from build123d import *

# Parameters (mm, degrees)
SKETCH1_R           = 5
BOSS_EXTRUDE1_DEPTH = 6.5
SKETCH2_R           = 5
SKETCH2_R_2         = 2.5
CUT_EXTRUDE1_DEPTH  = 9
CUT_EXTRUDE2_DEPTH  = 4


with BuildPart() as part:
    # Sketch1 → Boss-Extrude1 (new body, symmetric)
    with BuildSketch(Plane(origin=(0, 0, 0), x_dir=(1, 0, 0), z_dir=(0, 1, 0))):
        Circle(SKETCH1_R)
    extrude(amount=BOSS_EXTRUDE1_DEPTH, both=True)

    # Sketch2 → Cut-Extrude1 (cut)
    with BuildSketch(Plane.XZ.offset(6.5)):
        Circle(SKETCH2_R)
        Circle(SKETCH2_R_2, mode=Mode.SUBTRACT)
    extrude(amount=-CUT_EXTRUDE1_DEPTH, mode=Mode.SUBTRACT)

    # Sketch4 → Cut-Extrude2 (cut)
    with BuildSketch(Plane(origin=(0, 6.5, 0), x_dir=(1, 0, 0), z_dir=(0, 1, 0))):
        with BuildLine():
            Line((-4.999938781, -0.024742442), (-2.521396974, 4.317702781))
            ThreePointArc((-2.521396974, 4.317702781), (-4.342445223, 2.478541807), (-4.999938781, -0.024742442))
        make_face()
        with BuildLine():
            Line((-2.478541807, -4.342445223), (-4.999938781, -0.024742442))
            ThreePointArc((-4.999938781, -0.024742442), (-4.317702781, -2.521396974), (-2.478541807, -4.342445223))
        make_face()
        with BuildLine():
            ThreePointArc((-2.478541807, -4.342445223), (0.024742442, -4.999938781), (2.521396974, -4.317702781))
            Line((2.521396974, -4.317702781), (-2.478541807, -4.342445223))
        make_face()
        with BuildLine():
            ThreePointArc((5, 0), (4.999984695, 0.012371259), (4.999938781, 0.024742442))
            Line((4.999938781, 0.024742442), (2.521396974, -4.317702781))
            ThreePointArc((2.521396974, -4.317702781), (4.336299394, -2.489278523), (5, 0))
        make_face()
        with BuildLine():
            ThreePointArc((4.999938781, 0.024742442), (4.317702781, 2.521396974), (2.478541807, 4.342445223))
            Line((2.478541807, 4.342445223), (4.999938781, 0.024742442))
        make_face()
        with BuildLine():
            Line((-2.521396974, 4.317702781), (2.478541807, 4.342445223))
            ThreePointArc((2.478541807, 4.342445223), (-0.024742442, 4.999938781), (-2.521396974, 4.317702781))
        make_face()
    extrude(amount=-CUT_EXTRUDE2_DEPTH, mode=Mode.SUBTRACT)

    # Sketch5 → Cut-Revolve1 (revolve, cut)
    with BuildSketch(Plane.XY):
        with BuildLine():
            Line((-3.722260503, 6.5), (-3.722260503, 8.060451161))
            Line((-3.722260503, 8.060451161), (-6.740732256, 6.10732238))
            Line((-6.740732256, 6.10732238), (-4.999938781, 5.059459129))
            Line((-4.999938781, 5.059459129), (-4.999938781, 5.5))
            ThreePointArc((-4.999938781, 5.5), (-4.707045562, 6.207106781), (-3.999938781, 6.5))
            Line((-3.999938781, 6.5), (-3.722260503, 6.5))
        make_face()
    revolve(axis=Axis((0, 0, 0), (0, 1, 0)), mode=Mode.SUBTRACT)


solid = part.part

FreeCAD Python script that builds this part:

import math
import FreeCAD as App
import Part
import Sketcher

V = App.Vector
Q = App.Units.Quantity

doc = App.newDocument("Part")
body = doc.addObject("PartDesign::Body", "Body")

# Sketch on XZ plane
sketch1 = body.newObject("Sketcher::SketchObject", "Sketch")
sketch1.AttachmentSupport = (doc.getObject("XZ_Plane"), [""])
sketch1.MapMode = "FlatFace"
sketch1.addGeometry(Part.Circle(V(0, 0, 0), V(0, 0, 1), 5), False)
sketch1.addConstraint([
    Sketcher.Constraint("Coincident", 0, 3, -1, 1),
    Sketcher.Constraint("Diameter", 0, Q("10 mm")),
])
pad1 = body.newObject("PartDesign::Pad", "Pad")
pad1.Profile = sketch1
pad1.Length = 13
pad1.Midplane = True

# Sketch on XZ plane
sketch2 = body.newObject("Sketcher::SketchObject", "Sketch001")
sketch2.AttachmentSupport = (doc.getObject("XZ_Plane"), [""])
sketch2.MapMode = "FlatFace"
sketch2.AttachmentOffset = App.Placement(V(0, 0, 6.5), App.Rotation())
sketch2.addGeometry([
    Part.Circle(V(0, 0, 0), V(0, 0, 1), 5),
    Part.Circle(V(0, 0, 0), V(0, 0, 1), 2.5),
], False)
sketch2.addConstraint([
    Sketcher.Constraint("Coincident", 0, 3, -1, 1),
    Sketcher.Constraint("Coincident", 1, 3, -1, 1),
    Sketcher.Constraint("Diameter", 0, Q("10 mm")),
    Sketcher.Constraint("Diameter", 1, Q("5 mm")),
])
pocket1 = body.newObject("PartDesign::Pocket", "Pocket")
pocket1.Profile = sketch2
pocket1.Length = 9

# Sketch on XZ plane
sketch3 = body.newObject("Sketcher::SketchObject", "Sketch002")
sketch3.AttachmentSupport = (doc.getObject("XZ_Plane"), [""])
sketch3.MapMode = "FlatFace"
sketch3.AttachmentOffset = App.Placement(V(0, 0, -6.5), App.Rotation())
sketch3.addGeometry([
    Part.LineSegment(V(-4.999939, 0.024742, 0), V(-2.521397, -4.317703, 0)),  # 0
    Part.ArcOfCircle(Part.Circle(V(0, 0, 0), V(0, 0, 1), 5), math.radians(179.716471), math.radians(239.716471)),  # 1
    Part.LineSegment(V(-2.478542, 4.342445, 0), V(-4.999939, 0.024742, 0)),  # 2
    Part.ArcOfCircle(Part.Circle(V(0, 0, 0), V(0, 0, 1), 5), math.radians(119.716471), math.radians(179.716471)),  # 3
    Part.ArcOfCircle(Part.Circle(V(0, 0, 0), V(0, 0, 1), 5), math.radians(59.716471), math.radians(119.716471)),  # 4
    Part.LineSegment(V(2.521397, 4.317703, 0), V(-2.478542, 4.342445, 0)),  # 5
    Part.ArcOfCircle(Part.Circle(V(-0.000092, 0, 0), V(0, 0, 1), 5.000092), math.radians(-0.283526), math.radians(-0.000002)),  # 6
    Part.LineSegment(V(4.999939, -0.024742, 0), V(2.521397, 4.317703, 0)),  # 7
    Part.ArcOfCircle(Part.Circle(V(0, 0, 0), V(0, 0, 1), 5), math.radians(0), math.radians(59.716471)),  # 8
    Part.ArcOfCircle(Part.Circle(V(0, 0, 0), V(0, 0, 1), 5), math.radians(-60.283529), math.radians(-0.283529)),  # 9
    Part.LineSegment(V(2.478542, -4.342445, 0), V(4.999939, -0.024742, 0)),  # 10
    Part.LineSegment(V(-2.521397, -4.317703, 0), V(2.478542, -4.342445, 0)),  # 11
    Part.ArcOfCircle(Part.Circle(V(0, 0, 0), V(0, 0, 1), 5), math.radians(-120.283529), math.radians(-60.283529)),  # 12
], False)
sketch3.addConstraint([
    Sketcher.Constraint("Coincident", 0, 1, 1, 1),
    Sketcher.Constraint("Coincident", 1, 2, 0, 2),
    Sketcher.Constraint("Coincident", 2, 1, 3, 1),
    Sketcher.Constraint("Coincident", 3, 2, 2, 2),
    Sketcher.Constraint("Coincident", 4, 1, 5, 1),
    Sketcher.Constraint("Coincident", 5, 2, 4, 2),
    Sketcher.Constraint("Coincident", 6, 1, 7, 1),
    Sketcher.Constraint("Coincident", 7, 2, 8, 2),
    Sketcher.Constraint("Tangent", 8, 1, 6, 2),
    Sketcher.Constraint("Coincident", 9, 1, 10, 1),
    Sketcher.Constraint("Coincident", 10, 2, 9, 2),
    Sketcher.Constraint("Coincident", 11, 1, 12, 1),
    Sketcher.Constraint("Coincident", 12, 2, 11, 2),
    Sketcher.Constraint("Coincident", 1, 3, -1, 1),
    Sketcher.Constraint("Coincident", 3, 3, -1, 1),
    Sketcher.Constraint("Coincident", 4, 3, -1, 1),
    Sketcher.Constraint("Coincident", 8, 3, -1, 1),
    Sketcher.Constraint("Coincident", 9, 3, -1, 1),
    Sketcher.Constraint("Coincident", 12, 3, -1, 1),
    Sketcher.Constraint("Coincident", 3, 2, 0, 1),
    Sketcher.Constraint("Coincident", 5, 2, 2, 1),
    Sketcher.Constraint("Coincident", 7, 2, 4, 1),
    Sketcher.Constraint("Coincident", 10, 2, 6, 1),
    Sketcher.Constraint("Coincident", 11, 1, 1, 2),
    Sketcher.Constraint("PointOnObject", 8, 1, -1),
    Sketcher.Constraint("Parallel", 0, 7),
    Sketcher.Constraint("Parallel", 2, 10),
    Sketcher.Constraint("Parallel", 5, 11),
    Sketcher.Constraint("Equal", 0, 2),
    Sketcher.Constraint("Equal", 2, 5),
    Sketcher.Constraint("Equal", 5, 7),
    Sketcher.Constraint("Radius", 1, Q("5 mm")),
    Sketcher.Constraint("Radius", 6, Q("5.000092 mm")),
    Sketcher.Constraint("DistanceX", 2, 1, -1, 1, Q("2.478542 mm")),
])
pocket2 = body.newObject("PartDesign::Pocket", "Pocket001")
pocket2.Profile = sketch3
pocket2.Length = 4
pocket2.Reversed = True

# Sketch on XY plane
sketch4 = body.newObject("Sketcher::SketchObject", "Sketch003")
sketch4.AttachmentSupport = (doc.getObject("XY_Plane"), [""])
sketch4.MapMode = "FlatFace"
sketch4.addGeometry([
    Part.LineSegment(V(-3.722261, 6.5, 0), V(-3.722261, 8.060451, 0)),  # 0
    Part.LineSegment(V(-3.722261, 8.060451, 0), V(-6.740732, 6.107322, 0)),  # 1
    Part.LineSegment(V(-6.740732, 6.107322, 0), V(-4.999939, 5.059459, 0)),  # 2
    Part.LineSegment(V(-4.999939, 5.059459, 0), V(-4.999939, 5.5, 0)),  # 3
    Part.ArcOfCircle(Part.Circle(V(-3.999939, 5.5, 0), V(0, 0, 1), 1), math.radians(90), math.radians(180)),  # 4
    Part.LineSegment(V(-3.999939, 6.5, 0), V(-3.722261, 6.5, 0)),  # 5
], False)
sketch4.addConstraint([
    Sketcher.Constraint("Coincident", 0, 2, 1, 1),
    Sketcher.Constraint("Coincident", 1, 2, 2, 1),
    Sketcher.Constraint("Coincident", 2, 2, 3, 1),
    Sketcher.Constraint("Tangent", 3, 2, 4, 2),
    Sketcher.Constraint("Tangent", 4, 1, 5, 1),
    Sketcher.Constraint("Coincident", 5, 2, 0, 1),
    Sketcher.Constraint("Vertical", 0),
    Sketcher.Constraint("Vertical", 3),
    Sketcher.Constraint("Horizontal", 5),
    Sketcher.Constraint("Radius", 4, Q("1 mm")),
    Sketcher.Constraint("DistanceY", -1, 1, 4, 3, Q("5.5 mm")),
    Sketcher.Constraint("DistanceX", 5, 1, 5, 2, Q("0.277678 mm")),
    Sketcher.Constraint("DistanceY", 0, 1, 0, 2, Q("1.560451 mm")),
    Sketcher.Constraint("DistanceY", 3, 1, 3, 2, Q("0.440541 mm")),
    Sketcher.Constraint("Distance", 1, Q("3.595259 mm")),
    Sketcher.Constraint("Distance", 2, Q("2.031841 mm")),
    Sketcher.Constraint("DistanceX", 4, 3, -1, 1, Q("3.999939 mm")),
])
groove = body.newObject("PartDesign::Groove", "Groove")
groove.Profile = sketch4
groove.ReferenceAxis = (sketch4, ["V_Axis"])
groove.Angle = 360

doc.recompute()
